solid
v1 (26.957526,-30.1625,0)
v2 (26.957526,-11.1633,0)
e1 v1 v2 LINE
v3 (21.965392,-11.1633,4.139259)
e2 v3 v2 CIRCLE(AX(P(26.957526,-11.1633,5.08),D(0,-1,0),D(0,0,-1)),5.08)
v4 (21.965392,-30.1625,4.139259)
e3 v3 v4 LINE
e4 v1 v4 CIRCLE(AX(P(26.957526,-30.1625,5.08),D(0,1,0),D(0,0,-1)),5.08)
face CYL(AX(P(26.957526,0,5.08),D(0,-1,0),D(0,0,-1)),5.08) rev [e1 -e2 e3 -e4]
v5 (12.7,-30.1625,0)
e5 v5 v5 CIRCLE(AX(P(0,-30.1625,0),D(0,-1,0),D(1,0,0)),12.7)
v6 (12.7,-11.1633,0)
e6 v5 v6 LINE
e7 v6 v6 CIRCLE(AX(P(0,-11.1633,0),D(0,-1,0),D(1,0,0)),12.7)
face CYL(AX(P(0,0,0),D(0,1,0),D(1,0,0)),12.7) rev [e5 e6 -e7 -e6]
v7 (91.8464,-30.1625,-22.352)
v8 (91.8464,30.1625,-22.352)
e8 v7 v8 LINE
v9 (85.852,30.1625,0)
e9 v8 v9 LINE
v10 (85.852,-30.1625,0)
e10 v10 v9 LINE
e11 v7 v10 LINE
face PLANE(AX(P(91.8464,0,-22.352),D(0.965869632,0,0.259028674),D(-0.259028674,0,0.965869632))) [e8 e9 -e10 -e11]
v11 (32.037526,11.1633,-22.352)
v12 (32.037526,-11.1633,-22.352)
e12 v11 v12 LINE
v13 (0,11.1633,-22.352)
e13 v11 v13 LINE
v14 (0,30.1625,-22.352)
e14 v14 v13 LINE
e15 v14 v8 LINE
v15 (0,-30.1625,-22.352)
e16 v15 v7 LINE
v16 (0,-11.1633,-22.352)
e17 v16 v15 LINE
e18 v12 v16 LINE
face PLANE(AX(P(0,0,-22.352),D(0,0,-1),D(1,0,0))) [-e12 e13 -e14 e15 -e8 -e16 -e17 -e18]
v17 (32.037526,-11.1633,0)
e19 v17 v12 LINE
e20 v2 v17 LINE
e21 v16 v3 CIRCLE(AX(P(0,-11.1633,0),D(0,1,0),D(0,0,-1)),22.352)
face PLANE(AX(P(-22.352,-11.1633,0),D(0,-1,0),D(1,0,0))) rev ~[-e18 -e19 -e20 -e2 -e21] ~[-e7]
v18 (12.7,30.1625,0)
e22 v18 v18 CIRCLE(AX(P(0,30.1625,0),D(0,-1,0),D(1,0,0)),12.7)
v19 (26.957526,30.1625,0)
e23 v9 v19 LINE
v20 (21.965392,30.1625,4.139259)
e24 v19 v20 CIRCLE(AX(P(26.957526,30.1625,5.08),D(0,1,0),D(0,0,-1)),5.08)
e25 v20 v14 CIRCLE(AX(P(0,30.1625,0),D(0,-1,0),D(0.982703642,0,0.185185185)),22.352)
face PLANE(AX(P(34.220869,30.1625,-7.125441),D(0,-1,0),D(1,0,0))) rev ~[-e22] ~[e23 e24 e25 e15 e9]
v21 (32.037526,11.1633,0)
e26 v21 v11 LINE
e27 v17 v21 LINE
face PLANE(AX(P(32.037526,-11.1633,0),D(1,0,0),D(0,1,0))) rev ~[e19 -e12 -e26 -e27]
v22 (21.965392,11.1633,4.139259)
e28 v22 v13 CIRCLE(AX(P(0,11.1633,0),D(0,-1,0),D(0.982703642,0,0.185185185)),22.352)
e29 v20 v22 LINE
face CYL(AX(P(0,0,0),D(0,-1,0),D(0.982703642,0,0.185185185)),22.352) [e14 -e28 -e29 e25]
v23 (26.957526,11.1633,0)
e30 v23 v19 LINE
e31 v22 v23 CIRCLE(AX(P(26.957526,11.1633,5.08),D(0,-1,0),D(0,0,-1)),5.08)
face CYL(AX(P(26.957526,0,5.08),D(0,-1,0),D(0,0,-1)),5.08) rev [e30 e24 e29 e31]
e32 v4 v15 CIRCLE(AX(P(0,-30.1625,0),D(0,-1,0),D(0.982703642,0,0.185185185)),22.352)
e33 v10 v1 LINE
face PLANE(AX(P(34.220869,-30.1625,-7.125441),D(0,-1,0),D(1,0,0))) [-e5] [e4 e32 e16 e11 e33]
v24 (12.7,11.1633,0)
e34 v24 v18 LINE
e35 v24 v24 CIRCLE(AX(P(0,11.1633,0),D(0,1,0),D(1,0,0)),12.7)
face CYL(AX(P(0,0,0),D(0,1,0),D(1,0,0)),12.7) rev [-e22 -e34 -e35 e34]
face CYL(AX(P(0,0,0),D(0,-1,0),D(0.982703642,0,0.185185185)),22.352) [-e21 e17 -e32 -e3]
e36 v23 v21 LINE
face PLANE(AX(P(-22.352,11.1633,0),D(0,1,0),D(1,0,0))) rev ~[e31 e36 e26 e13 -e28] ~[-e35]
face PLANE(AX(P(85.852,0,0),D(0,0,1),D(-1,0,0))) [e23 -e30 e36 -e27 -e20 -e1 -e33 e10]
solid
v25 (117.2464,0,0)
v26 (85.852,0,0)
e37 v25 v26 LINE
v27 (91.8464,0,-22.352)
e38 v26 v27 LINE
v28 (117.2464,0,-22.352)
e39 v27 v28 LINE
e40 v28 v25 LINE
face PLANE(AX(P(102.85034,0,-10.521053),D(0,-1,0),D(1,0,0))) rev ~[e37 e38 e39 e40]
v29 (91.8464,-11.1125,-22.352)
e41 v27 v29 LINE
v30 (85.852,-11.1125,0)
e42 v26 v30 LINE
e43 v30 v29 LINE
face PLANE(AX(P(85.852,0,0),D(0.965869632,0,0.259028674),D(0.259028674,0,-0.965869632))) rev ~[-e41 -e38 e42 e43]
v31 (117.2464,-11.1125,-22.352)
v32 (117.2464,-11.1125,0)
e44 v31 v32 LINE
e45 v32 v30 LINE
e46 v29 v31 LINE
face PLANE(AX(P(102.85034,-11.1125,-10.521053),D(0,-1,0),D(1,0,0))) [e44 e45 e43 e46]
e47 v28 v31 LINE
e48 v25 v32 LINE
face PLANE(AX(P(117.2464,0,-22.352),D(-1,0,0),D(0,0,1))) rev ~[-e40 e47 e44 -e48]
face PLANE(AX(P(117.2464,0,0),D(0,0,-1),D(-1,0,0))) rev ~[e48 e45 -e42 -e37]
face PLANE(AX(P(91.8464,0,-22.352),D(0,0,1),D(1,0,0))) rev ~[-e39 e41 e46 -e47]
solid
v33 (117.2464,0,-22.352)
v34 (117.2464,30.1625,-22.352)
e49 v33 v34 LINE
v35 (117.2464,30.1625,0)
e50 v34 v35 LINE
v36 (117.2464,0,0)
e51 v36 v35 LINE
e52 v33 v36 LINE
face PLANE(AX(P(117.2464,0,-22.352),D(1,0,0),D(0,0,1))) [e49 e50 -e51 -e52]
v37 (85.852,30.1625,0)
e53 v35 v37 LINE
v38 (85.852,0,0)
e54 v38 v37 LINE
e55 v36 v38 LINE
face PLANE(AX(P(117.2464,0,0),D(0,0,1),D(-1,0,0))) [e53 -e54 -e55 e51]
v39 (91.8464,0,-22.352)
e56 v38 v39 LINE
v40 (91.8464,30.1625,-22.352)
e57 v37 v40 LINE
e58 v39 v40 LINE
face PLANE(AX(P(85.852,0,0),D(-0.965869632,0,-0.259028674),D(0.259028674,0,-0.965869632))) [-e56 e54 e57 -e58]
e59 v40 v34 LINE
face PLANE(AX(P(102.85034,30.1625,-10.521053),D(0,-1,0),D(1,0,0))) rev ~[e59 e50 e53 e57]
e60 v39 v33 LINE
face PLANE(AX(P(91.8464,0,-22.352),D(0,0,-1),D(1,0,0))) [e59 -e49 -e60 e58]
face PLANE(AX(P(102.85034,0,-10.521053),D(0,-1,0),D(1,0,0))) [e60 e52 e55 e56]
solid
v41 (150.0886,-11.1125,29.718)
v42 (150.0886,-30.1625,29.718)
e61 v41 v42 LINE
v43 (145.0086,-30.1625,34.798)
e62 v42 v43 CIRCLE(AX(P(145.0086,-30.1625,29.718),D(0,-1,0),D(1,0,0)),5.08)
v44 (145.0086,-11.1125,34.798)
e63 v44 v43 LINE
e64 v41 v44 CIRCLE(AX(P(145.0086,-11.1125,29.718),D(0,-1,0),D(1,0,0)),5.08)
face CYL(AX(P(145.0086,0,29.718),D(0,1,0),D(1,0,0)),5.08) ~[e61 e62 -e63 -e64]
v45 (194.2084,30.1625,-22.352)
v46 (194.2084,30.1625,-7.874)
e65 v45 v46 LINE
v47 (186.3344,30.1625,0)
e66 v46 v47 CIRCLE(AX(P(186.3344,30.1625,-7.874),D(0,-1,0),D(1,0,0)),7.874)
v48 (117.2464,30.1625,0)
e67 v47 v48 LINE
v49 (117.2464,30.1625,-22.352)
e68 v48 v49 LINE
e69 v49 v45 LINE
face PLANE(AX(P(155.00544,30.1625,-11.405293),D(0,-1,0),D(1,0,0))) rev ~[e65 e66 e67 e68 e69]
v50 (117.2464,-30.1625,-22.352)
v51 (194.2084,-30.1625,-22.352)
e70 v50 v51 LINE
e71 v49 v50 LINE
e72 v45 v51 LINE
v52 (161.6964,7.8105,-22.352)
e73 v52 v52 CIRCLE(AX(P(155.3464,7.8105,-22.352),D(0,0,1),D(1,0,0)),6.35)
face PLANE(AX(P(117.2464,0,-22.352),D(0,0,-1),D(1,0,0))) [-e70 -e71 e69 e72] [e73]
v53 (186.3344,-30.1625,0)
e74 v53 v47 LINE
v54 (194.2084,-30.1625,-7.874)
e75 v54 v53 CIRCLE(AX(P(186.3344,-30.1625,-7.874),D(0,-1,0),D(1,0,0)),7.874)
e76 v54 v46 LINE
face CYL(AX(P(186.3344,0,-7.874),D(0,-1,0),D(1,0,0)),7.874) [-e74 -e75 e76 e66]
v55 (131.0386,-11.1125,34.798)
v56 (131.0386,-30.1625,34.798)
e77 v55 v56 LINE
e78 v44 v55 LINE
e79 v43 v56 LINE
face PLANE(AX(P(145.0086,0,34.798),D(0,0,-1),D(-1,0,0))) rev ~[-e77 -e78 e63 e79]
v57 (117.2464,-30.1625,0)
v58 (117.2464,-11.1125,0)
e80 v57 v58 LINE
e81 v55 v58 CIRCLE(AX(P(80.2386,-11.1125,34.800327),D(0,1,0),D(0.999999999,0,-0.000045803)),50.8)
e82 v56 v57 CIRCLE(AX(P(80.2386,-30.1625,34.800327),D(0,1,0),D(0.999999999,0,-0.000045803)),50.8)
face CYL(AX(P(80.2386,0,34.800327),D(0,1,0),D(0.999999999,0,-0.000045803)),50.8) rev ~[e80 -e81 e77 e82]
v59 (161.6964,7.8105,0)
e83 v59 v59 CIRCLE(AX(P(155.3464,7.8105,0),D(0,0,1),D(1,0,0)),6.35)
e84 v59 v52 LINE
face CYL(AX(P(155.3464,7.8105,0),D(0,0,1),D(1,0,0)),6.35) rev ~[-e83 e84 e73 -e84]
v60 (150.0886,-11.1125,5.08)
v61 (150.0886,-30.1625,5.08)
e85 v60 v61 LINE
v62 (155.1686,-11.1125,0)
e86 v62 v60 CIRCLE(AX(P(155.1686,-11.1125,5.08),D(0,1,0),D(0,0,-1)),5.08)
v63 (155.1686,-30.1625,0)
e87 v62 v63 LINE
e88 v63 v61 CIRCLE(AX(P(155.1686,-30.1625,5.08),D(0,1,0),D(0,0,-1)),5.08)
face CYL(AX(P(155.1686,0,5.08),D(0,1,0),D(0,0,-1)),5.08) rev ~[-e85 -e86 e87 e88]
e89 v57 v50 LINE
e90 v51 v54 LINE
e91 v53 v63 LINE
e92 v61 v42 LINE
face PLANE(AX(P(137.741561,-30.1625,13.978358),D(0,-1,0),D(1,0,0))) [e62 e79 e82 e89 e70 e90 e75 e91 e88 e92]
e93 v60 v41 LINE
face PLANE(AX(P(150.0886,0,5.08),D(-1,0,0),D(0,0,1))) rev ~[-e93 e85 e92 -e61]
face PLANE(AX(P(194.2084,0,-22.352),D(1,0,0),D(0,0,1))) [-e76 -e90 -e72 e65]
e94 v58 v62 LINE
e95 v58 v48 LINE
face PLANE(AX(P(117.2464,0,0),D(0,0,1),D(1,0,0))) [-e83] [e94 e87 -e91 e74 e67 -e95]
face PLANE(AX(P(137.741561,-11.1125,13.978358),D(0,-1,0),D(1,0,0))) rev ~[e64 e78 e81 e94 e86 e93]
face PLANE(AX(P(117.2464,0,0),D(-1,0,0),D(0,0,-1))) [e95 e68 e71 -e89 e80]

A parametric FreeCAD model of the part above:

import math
import FreeCAD as App
import Part
import Sketcher
from FreeCAD import Vector
Q = App.Units.Quantity

doc = App.newDocument("Part")
body = doc.addObject("PartDesign::Body", "Body")

# Sketch on XZ plane
sketch1 = body.newObject("Sketcher::SketchObject", "Sketch")
sketch1.AttachmentSupport = (doc.getObject("XZ_Plane"), [""])
sketch1.MapMode = "FlatFace"
sketch1.addGeometry(Part.ArcOfCircle(Part.Circle(Vector(26.957526, 5.08, 0), Vector(0, 0, 1), 5.08), math.radians(-169.328071), math.radians(-90)), False)
sketch1.addGeometry(Part.ArcOfCircle(Part.Circle(Vector(0, 0, 0), Vector(0, 0, 1), 22.352), math.radians(10.671929), math.radians(270)), False)
sketch1.addGeometry(Part.LineSegment(Vector(0, -22.352, 0), Vector(91.8464, -22.352, 0)), False)
sketch1.addGeometry(Part.LineSegment(Vector(91.8464, -22.352, 0), Vector(85.852, 0, 0)), False)
sketch1.addGeometry(Part.LineSegment(Vector(85.852, 0, 0), Vector(26.957526, 0, 0)), False)
sketch1.addGeometry(Part.Circle(Vector(0, 0, 0), Vector(0, 0, 1), 12.7), False)
sketch1.addConstraint(Sketcher.Constraint("Tangent", 0, 1, 1, 1))
sketch1.addConstraint(Sketcher.Constraint("Tangent", 1, 2, 2, 1))
sketch1.addConstraint(Sketcher.Constraint("Coincident", 2, 2, 3, 1))
sketch1.addConstraint(Sketcher.Constraint("Coincident", 3, 2, 4, 1))
sketch1.addConstraint(Sketcher.Constraint("Tangent", 4, 2, 0, 2))
sketch1.addConstraint(Sketcher.Constraint("Horizontal", 2))
sketch1.addConstraint(Sketcher.Constraint("Horizontal", 4))
sketch1.addConstraint(Sketcher.Constraint("Coincident", 1, 3, -1, 1))
sketch1.addConstraint(Sketcher.Constraint("Coincident", 5, 3, -1, 1))
sketch1.addConstraint(Sketcher.Constraint("PointOnObject", 3, 2, -1))
sketch1.addConstraint(Sketcher.Constraint("Diameter", 5, Q("1 in")))
sketch1.addConstraint(Sketcher.Constraint("Radius", 0, Q("0.2 in")))
sketch1.addConstraint(Sketcher.Constraint("Radius", 1, Q("0.88 in")))
sketch1.addConstraint(Sketcher.Constraint("DistanceX", 2, 1, 2, 2, Q("3.616 in")))
sketch1.addConstraint(Sketcher.Constraint("DistanceX", -1, 1, 3, 2, Q("3.38 in")))
pad1 = body.newObject("PartDesign::Pad", "Pad")
pad1.Profile = sketch1
pad1.Length = Q("2.375 in")
pad1.Midplane = True

# Sketch on XY plane
sketch2 = body.newObject("Sketcher::SketchObject", "Sketch001")
sketch2.AttachmentSupport = (doc.getObject("XY_Plane"), [""])
sketch2.MapMode = "FlatFace"
sketch2.addGeometry(Part.LineSegment(Vector(-22.352, 11.1633, 0), Vector(-22.352, -11.1633, 0)), False)
sketch2.addGeometry(Part.LineSegment(Vector(-22.352, -11.1633, 0), Vector(32.037526, -11.1633, 0)), False)
sketch2.addGeometry(Part.LineSegment(Vector(32.037526, -11.1633, 0), Vector(32.037526, 11.1633, 0)), False)
sketch2.addGeometry(Part.LineSegment(Vector(32.037526, 11.1633, 0), Vector(-22.352, 11.1633, 0)), False)
sketch2.addConstraint(Sketcher.Constraint("Coincident", 0, 2, 1, 1))
sketch2.addConstraint(Sketcher.Constraint("Coincident", 1, 2, 2, 1))
sketch2.addConstraint(Sketcher.Constraint("Coincident", 2, 2, 3, 1))
sketch2.addConstraint(Sketcher.Constraint("Coincident", 3, 2, 0, 1))
sketch2.addConstraint(Sketcher.Constraint("Vertical", 0))
sketch2.addConstraint(Sketcher.Constraint("Horizontal", 1))
sketch2.addConstraint(Sketcher.Constraint("Vertical", 2))
sketch2.addConstraint(Sketcher.Constraint("Horizontal", 3))
sketch2.addConstraint(Sketcher.Constraint("DistanceY", 0, 2, 0, 1, Q("0.879 in")))
sketch2.addConstraint(Sketcher.Constraint("DistanceX", 0, 2, -1, 1, Q("0.88 in")))
sketch2.addConstraint(Sketcher.Constraint("DistanceY", 0, 2, -1, 1, Q("0.4395 in")))
sketch2.addConstraint(Sketcher.Constraint("DistanceX", 1, 1, 1, 2, 54.389526))
pocket1 = body.newObject("PartDesign::Pocket", "Pocket")
pocket1.Profile = sketch2
pocket1.Type = "ThroughAll"
pocket1.Midplane = True
body2 = doc.addObject("PartDesign::Body", "Body001")

# Sketch on XZ plane
sketch3 = body2.newObject("Sketcher::SketchObject", "Sketch002")
sketch3.AttachmentSupport = (doc.getObject("XZ_Plane001"), [""])
sketch3.MapMode = "FlatFace"
sketch3.addGeometry(Part.LineSegment(Vector(117.2464, 0, 0), Vector(117.2464, -22.352, 0)), False)
sketch3.addGeometry(Part.LineSegment(Vector(117.2464, -22.352, 0), Vector(194.2084, -22.352, 0)), False)
sketch3.addGeometry(Part.LineSegment(Vector(194.2084, -22.352, 0), Vector(194.2084, -7.874, 0)), False)
sketch3.addGeometry(Part.ArcOfCircle(Part.Circle(Vector(186.3344, -7.874, 0), Vector(0, 0, 1), 7.874), math.radians(0), math.radians(90)), False)
sketch3.addGeometry(Part.LineSegment(Vector(186.3344, 0, 0), Vector(117.2464, 0, 0)), False)
sketch3.addConstraint(Sketcher.Constraint("Coincident", 0, 2, 1, 1))
sketch3.addConstraint(Sketcher.Constraint("Coincident", 1, 2, 2, 1))
sketch3.addConstraint(Sketcher.Constraint("Tangent", 2, 2, 3, 1))
sketch3.addConstraint(Sketcher.Constraint("Tangent", 3, 2, 4, 1))
sketch3.addConstraint(Sketcher.Constraint("Coincident", 4, 2, 0, 1))
sketch3.addConstraint(Sketcher.Constraint("Vertical", 0))
sketch3.addConstraint(Sketcher.Constraint("Horizontal", 1))
sketch3.addConstraint(Sketcher.Constraint("Vertical", 2))
sketch3.addConstraint(Sketcher.Constraint("Horizontal", 4))
sketch3.addConstraint(Sketcher.Constraint("PointOnObject", 3, 2, -1))
sketch3.addConstraint(Sketcher.Constraint("Radius", 3, Q("0.31 in")))
sketch3.addConstraint(Sketcher.Constraint("DistanceX", 1, 1, 1, 2, Q("3.03 in")))
sketch3.addConstraint(Sketcher.Constraint("DistanceY", 0, 2, 0, 1, Q("0.88 in")))
sketch3.addConstraint(Sketcher.Constraint("DistanceX", -1, 1, 3, 3, Q("7.336 in")))
pad2 = body2.newObject("PartDesign::Pad", "Pad001")
pad2.Profile = sketch3
pad2.Length = Q("2.375 in")
pad2.Midplane = True

# Sketch on XZ plane
sketch4 = body2.newObject("Sketcher::SketchObject", "Sketch003")
sketch4.AttachmentSupport = (doc.getObject("XZ_Plane001"), [""])
sketch4.MapMode = "FlatFace"
sketch4.addGeometry(Part.ArcOfCircle(Part.Circle(Vector(80.2386, 34.800327, 0), Vector(0, 0, 1), 50.8), math.radians(-43.239209), math.radians(-0.002624)), False)
sketch4.addGeometry(Part.LineSegment(Vector(117.2464, 0, 0), Vector(155.1686, 0, 0)), False)
sketch4.addGeometry(Part.ArcOfCircle(Part.Circle(Vector(155.1686, 5.08, 0), Vector(0, 0, 1), 5.08), math.radians(180), math.radians(270)), False)
sketch4.addGeometry(Part.LineSegment(Vector(150.0886, 5.08, 0), Vector(150.0886, 29.718, 0)), False)
sketch4.addGeometry(Part.ArcOfCircle(Part.Circle(Vector(145.0086, 29.718, 0), Vector(0, 0, 1), 5.08), math.radians(0), math.radians(90)), False)
sketch4.addGeometry(Part.LineSegment(Vector(145.0086, 34.798, 0), Vector(131.0386, 34.798, 0)), False)
sketch4.addConstraint(Sketcher.Constraint("Coincident", 0, 1, 1, 1))
sketch4.addConstraint(Sketcher.Constraint("Tangent", 1, 2, 2, 2))
sketch4.addConstraint(Sketcher.Constraint("Tangent", 2, 1, 3, 1))
sketch4.addConstraint(Sketcher.Constraint("Tangent", 3, 2, 4, 1))
sketch4.addConstraint(Sketcher.Constraint("Tangent", 4, 2, 5, 1))
sketch4.addConstraint(Sketcher.Constraint("Coincident", 5, 2, 0, 2))
sketch4.addConstraint(Sketcher.Constraint("Horizontal", 1))
sketch4.addConstraint(Sketcher.Constraint("Vertical", 3))
sketch4.addConstraint(Sketcher.Constraint("Horizontal", 5))
sketch4.addConstraint(Sketcher.Constraint("Equal", 2, 4))
sketch4.addConstraint(Sketcher.Constraint("PointOnObject", 0, 1, -1))
sketch4.addConstraint(Sketcher.Constraint("Radius", 0, Q("2 in")))
sketch4.addConstraint(Sketcher.Constraint("Radius", 2, Q("0.2 in")))
sketch4.addConstraint(Sketcher.Constraint("DistanceX", 5, 2, 5, 1, Q("0.55 in")))
sketch4.addConstraint(Sketcher.Constraint("DistanceY", 3, 1, 3, 2, Q("0.97 in")))
sketch4.addConstraint(Sketcher.Constraint("DistanceX", 1, 1, 1, 2, Q("1.493 in")))
sketch4.addConstraint(Sketcher.Constraint("DistanceX", -1, 1, 0, 3, Q("3.159 in")))
pad3 = body2.newObject("PartDesign::Pad", "Pad002")
pad3.Profile = sketch4
pad3.Length = Q("1.1875 in")

# Sketch on XZ plane
sketch5 = body2.newObject("Sketcher::SketchObject", "Sketch004")
sketch5.AttachmentSupport = (doc.getObject("XZ_Plane001"), [""])
sketch5.MapMode = "FlatFace"
sketch5.addGeometry(Part.ArcOfCircle(Part.Circle(Vector(80.2386, 34.800327, 0), Vector(0, 0, 1), 50.8), math.radians(-43.239209), math.radians(-0.002624)), False)
sketch5.addGeometry(Part.LineSegment(Vector(117.2464, 0, 0), Vector(155.1686, 0, 0)), False)
sketch5.addGeometry(Part.ArcOfCircle(Part.Circle(Vector(155.1686, 5.08, 0), Vector(0, 0, 1), 5.08), math.radians(180), math.radians(270)), False)
sketch5.addGeometry(Part.LineSegment(Vector(150.0886, 5.08, 0), Vector(150.0886, 29.718, 0)), False)
sketch5.addGeometry(Part.ArcOfCircle(Part.Circle(Vector(145.0086, 29.718, 0), Vector(0, 0, 1), 5.08), math.radians(0), math.radians(90)), False)
sketch5.addGeometry(Part.LineSegment(Vector(145.0086, 34.798, 0), Vector(131.0386, 34.798, 0)), False)
sketch5.addConstraint(Sketcher.Constraint("Coincident", 0, 1, 1, 1))
sketch5.addConstraint(Sketcher.Constraint("Tangent", 1, 2, 2, 2))
sketch5.addConstraint(Sketcher.Constraint("Tangent", 2, 1, 3, 1))
sketch5.addConstraint(Sketcher.Constraint("Tangent", 3, 2, 4, 1))
sketch5.addConstraint(Sketcher.Constraint("Tangent", 4, 2, 5, 1))
sketch5.addConstraint(Sketcher.Constraint("Coincident", 5, 2, 0, 2))
sketch5.addConstraint(Sketcher.Constraint("Horizontal", 1))
sketch5.addConstraint(Sketcher.Constraint("Vertical", 3))
sketch5.addConstraint(Sketcher.Constraint("Horizontal", 5))
sketch5.addConstraint(Sketcher.Constraint("Equal", 2, 4))
sketch5.addConstraint(Sketcher.Constraint("PointOnObject", 0, 1, -1))
sketch5.addConstraint(Sketcher.Constraint("Radius", 0, Q("2 in")))
sketch5.addConstraint(Sketcher.Constraint("Radius", 2, Q("0.2 in")))
sketch5.addConstraint(Sketcher.Constraint("DistanceX", 5, 2, 5, 1, Q("0.55 in")))
sketch5.addConstraint(Sketcher.Constraint("DistanceY", 3, 1, 3, 2, Q("0.97 in")))
sketch5.addConstraint(Sketcher.Constraint("DistanceX", 1, 1, 1, 2, Q("1.493 in")))
sketch5.addConstraint(Sketcher.Constraint("DistanceX", -1, 1, 0, 3, Q("3.159 in")))
pocket2 = body2.newObject("PartDesign::Pocket", "Pocket001")
pocket2.Profile = sketch5
pocket2.Length = Q("0.4375 in")
pocket2.Reversed = True

# Sketch on XY plane
sketch6 = body2.newObject("Sketcher::SketchObject", "Sketch005")
sketch6.AttachmentSupport = (doc.getObject("XY_Plane001"), [""])
sketch6.MapMode = "FlatFace"
sketch6.addGeometry(Part.Circle(Vector(155.3464, 7.8105, 0), Vector(0, 0, 1), 6.35), False)
sketch6.addConstraint(Sketcher.Constraint("Diameter", 0, Q("0.5 in")))
sketch6.addConstraint(Sketcher.Constraint("DistanceX", -1, 1, 0, 3, Q("6.116 in")))
sketch6.addConstraint(Sketcher.Constraint("DistanceY", -1, 1, 0, 3, Q("0.3075 in")))
pocket3 = body2.newObject("PartDesign::Pocket", "Pocket002")
pocket3.Profile = sketch6
pocket3.Type = "ThroughAll"
body3 = doc.addObject("PartDesign::Body", "Body002")

# Sketch on XZ plane
sketch7 = body3.newObject("Sketcher::SketchObject", "Sketch006")
sketch7.AttachmentSupport = (doc.getObject("XZ_Plane002"), [""])
sketch7.MapMode = "FlatFace"
sketch7.addGeometry(Part.LineSegment(Vector(85.852, 0, 0), Vector(91.8464, -22.352, 0)), False)
sketch7.addGeometry(Part.LineSegment(Vector(91.8464, -22.352, 0), Vector(117.2464, -22.352, 0)), False)
sketch7.addGeometry(Part.LineSegment(Vector(117.2464, -22.352, 0), Vector(117.2464, 0, 0)), False)
sketch7.addGeometry(Part.LineSegment(Vector(117.2464, 0, 0), Vector(85.852, 0, 0)), False)
sketch7.addConstraint(Sketcher.Constraint("Coincident", 0, 2, 1, 1))
sketch7.addConstraint(Sketcher.Constraint("Coincident", 1, 2, 2, 1))
sketch7.addConstraint(Sketcher.Constraint("Coincident", 2, 2, 3, 1))
sketch7.addConstraint(Sketcher.Constraint("Coincident", 3, 2, 0, 1))
sketch7.addConstraint(Sketcher.Constraint("Horizontal", 1))
sketch7.addConstraint(Sketcher.Constraint("Vertical", 2))
sketch7.addConstraint(Sketcher.Constraint("Horizontal", 3))
sketch7.addConstraint(Sketcher.Constraint("PointOnObject", 2, 2, -1))
sketch7.addConstraint(Sketcher.Constraint("DistanceX", 1, 1, 1, 2, Q("1 in")))
sketch7.addConstraint(Sketcher.Constraint("DistanceY", 2, 1, 2, 2, Q("0.88 in")))
sketch7.addConstraint(Sketcher.Constraint("DistanceX", 3, 2, 3, 1, Q("1.236 in")))
sketch7.addConstraint(Sketcher.Constraint("DistanceX", -1, 1, 3, 2, Q("3.38 in")))
pad4 = body3.newObject("PartDesign::Pad", "Pad003")
pad4.Profile = sketch7
pad4.Length = Q("1.1875 in")
pad4.Reversed = True
body4 = doc.addObject("PartDesign::Body", "Body003")

# Sketch on XZ plane
sketch8 = body4.newObject("Sketcher::SketchObject", "Sketch007")
sketch8.AttachmentSupport = (doc.getObject("XZ_Plane003"), [""])
sketch8.MapMode = "FlatFace"
sketch8.addGeometry(Part.LineSegment(Vector(85.852, 0, 0), Vector(91.8464, -22.352, 0)), False)
sketch8.addGeometry(Part.LineSegment(Vector(91.8464, -22.352, 0), Vector(117.2464, -22.352, 0)), False)
sketch8.addGeometry(Part.LineSegment(Vector(117.2464, -22.352, 0), Vector(117.2464, 0, 0)), False)
sketch8.addGeometry(Part.LineSegment(Vector(117.2464, 0, 0), Vector(85.852, 0, 0)), False)
sketch8.addConstraint(Sketcher.Constraint("Coincident", 0, 2, 1, 1))
sketch8.addConstraint(Sketcher.Constraint("Coincident", 1, 2, 2, 1))
sketch8.addConstraint(Sketcher.Constraint("Coincident", 2, 2, 3, 1))
sketch8.addConstraint(Sketcher.Constraint("Coincident", 3, 2, 0, 1))
sketch8.addConstraint(Sketcher.Constraint("Horizontal", 1))
sketch8.addConstraint(Sketcher.Constraint("Vertical", 2))
sketch8.addConstraint(Sketcher.Constraint("Horizontal", 3))
sketch8.addConstraint(Sketcher.Constraint("PointOnObject", 2, 2, -1))
sketch8.addConstraint(Sketcher.Constraint("DistanceX", 1, 1, 1, 2, Q("1 in")))
sketch8.addConstraint(Sketcher.Constraint("DistanceY", 2, 1, 2, 2, Q("0.88 in")))
sketch8.addConstraint(Sketcher.Constraint("DistanceX", 3, 2, 3, 1, Q("1.236 in")))
sketch8.addConstraint(Sketcher.Constraint("DistanceX", -1, 1, 3, 2, Q("3.38 in")))
pad5 = body4.newObject("PartDesign::Pad", "Pad004")
pad5.Profile = sketch8
pad5.Length = Q("0.4375 in")

doc.recompute()
